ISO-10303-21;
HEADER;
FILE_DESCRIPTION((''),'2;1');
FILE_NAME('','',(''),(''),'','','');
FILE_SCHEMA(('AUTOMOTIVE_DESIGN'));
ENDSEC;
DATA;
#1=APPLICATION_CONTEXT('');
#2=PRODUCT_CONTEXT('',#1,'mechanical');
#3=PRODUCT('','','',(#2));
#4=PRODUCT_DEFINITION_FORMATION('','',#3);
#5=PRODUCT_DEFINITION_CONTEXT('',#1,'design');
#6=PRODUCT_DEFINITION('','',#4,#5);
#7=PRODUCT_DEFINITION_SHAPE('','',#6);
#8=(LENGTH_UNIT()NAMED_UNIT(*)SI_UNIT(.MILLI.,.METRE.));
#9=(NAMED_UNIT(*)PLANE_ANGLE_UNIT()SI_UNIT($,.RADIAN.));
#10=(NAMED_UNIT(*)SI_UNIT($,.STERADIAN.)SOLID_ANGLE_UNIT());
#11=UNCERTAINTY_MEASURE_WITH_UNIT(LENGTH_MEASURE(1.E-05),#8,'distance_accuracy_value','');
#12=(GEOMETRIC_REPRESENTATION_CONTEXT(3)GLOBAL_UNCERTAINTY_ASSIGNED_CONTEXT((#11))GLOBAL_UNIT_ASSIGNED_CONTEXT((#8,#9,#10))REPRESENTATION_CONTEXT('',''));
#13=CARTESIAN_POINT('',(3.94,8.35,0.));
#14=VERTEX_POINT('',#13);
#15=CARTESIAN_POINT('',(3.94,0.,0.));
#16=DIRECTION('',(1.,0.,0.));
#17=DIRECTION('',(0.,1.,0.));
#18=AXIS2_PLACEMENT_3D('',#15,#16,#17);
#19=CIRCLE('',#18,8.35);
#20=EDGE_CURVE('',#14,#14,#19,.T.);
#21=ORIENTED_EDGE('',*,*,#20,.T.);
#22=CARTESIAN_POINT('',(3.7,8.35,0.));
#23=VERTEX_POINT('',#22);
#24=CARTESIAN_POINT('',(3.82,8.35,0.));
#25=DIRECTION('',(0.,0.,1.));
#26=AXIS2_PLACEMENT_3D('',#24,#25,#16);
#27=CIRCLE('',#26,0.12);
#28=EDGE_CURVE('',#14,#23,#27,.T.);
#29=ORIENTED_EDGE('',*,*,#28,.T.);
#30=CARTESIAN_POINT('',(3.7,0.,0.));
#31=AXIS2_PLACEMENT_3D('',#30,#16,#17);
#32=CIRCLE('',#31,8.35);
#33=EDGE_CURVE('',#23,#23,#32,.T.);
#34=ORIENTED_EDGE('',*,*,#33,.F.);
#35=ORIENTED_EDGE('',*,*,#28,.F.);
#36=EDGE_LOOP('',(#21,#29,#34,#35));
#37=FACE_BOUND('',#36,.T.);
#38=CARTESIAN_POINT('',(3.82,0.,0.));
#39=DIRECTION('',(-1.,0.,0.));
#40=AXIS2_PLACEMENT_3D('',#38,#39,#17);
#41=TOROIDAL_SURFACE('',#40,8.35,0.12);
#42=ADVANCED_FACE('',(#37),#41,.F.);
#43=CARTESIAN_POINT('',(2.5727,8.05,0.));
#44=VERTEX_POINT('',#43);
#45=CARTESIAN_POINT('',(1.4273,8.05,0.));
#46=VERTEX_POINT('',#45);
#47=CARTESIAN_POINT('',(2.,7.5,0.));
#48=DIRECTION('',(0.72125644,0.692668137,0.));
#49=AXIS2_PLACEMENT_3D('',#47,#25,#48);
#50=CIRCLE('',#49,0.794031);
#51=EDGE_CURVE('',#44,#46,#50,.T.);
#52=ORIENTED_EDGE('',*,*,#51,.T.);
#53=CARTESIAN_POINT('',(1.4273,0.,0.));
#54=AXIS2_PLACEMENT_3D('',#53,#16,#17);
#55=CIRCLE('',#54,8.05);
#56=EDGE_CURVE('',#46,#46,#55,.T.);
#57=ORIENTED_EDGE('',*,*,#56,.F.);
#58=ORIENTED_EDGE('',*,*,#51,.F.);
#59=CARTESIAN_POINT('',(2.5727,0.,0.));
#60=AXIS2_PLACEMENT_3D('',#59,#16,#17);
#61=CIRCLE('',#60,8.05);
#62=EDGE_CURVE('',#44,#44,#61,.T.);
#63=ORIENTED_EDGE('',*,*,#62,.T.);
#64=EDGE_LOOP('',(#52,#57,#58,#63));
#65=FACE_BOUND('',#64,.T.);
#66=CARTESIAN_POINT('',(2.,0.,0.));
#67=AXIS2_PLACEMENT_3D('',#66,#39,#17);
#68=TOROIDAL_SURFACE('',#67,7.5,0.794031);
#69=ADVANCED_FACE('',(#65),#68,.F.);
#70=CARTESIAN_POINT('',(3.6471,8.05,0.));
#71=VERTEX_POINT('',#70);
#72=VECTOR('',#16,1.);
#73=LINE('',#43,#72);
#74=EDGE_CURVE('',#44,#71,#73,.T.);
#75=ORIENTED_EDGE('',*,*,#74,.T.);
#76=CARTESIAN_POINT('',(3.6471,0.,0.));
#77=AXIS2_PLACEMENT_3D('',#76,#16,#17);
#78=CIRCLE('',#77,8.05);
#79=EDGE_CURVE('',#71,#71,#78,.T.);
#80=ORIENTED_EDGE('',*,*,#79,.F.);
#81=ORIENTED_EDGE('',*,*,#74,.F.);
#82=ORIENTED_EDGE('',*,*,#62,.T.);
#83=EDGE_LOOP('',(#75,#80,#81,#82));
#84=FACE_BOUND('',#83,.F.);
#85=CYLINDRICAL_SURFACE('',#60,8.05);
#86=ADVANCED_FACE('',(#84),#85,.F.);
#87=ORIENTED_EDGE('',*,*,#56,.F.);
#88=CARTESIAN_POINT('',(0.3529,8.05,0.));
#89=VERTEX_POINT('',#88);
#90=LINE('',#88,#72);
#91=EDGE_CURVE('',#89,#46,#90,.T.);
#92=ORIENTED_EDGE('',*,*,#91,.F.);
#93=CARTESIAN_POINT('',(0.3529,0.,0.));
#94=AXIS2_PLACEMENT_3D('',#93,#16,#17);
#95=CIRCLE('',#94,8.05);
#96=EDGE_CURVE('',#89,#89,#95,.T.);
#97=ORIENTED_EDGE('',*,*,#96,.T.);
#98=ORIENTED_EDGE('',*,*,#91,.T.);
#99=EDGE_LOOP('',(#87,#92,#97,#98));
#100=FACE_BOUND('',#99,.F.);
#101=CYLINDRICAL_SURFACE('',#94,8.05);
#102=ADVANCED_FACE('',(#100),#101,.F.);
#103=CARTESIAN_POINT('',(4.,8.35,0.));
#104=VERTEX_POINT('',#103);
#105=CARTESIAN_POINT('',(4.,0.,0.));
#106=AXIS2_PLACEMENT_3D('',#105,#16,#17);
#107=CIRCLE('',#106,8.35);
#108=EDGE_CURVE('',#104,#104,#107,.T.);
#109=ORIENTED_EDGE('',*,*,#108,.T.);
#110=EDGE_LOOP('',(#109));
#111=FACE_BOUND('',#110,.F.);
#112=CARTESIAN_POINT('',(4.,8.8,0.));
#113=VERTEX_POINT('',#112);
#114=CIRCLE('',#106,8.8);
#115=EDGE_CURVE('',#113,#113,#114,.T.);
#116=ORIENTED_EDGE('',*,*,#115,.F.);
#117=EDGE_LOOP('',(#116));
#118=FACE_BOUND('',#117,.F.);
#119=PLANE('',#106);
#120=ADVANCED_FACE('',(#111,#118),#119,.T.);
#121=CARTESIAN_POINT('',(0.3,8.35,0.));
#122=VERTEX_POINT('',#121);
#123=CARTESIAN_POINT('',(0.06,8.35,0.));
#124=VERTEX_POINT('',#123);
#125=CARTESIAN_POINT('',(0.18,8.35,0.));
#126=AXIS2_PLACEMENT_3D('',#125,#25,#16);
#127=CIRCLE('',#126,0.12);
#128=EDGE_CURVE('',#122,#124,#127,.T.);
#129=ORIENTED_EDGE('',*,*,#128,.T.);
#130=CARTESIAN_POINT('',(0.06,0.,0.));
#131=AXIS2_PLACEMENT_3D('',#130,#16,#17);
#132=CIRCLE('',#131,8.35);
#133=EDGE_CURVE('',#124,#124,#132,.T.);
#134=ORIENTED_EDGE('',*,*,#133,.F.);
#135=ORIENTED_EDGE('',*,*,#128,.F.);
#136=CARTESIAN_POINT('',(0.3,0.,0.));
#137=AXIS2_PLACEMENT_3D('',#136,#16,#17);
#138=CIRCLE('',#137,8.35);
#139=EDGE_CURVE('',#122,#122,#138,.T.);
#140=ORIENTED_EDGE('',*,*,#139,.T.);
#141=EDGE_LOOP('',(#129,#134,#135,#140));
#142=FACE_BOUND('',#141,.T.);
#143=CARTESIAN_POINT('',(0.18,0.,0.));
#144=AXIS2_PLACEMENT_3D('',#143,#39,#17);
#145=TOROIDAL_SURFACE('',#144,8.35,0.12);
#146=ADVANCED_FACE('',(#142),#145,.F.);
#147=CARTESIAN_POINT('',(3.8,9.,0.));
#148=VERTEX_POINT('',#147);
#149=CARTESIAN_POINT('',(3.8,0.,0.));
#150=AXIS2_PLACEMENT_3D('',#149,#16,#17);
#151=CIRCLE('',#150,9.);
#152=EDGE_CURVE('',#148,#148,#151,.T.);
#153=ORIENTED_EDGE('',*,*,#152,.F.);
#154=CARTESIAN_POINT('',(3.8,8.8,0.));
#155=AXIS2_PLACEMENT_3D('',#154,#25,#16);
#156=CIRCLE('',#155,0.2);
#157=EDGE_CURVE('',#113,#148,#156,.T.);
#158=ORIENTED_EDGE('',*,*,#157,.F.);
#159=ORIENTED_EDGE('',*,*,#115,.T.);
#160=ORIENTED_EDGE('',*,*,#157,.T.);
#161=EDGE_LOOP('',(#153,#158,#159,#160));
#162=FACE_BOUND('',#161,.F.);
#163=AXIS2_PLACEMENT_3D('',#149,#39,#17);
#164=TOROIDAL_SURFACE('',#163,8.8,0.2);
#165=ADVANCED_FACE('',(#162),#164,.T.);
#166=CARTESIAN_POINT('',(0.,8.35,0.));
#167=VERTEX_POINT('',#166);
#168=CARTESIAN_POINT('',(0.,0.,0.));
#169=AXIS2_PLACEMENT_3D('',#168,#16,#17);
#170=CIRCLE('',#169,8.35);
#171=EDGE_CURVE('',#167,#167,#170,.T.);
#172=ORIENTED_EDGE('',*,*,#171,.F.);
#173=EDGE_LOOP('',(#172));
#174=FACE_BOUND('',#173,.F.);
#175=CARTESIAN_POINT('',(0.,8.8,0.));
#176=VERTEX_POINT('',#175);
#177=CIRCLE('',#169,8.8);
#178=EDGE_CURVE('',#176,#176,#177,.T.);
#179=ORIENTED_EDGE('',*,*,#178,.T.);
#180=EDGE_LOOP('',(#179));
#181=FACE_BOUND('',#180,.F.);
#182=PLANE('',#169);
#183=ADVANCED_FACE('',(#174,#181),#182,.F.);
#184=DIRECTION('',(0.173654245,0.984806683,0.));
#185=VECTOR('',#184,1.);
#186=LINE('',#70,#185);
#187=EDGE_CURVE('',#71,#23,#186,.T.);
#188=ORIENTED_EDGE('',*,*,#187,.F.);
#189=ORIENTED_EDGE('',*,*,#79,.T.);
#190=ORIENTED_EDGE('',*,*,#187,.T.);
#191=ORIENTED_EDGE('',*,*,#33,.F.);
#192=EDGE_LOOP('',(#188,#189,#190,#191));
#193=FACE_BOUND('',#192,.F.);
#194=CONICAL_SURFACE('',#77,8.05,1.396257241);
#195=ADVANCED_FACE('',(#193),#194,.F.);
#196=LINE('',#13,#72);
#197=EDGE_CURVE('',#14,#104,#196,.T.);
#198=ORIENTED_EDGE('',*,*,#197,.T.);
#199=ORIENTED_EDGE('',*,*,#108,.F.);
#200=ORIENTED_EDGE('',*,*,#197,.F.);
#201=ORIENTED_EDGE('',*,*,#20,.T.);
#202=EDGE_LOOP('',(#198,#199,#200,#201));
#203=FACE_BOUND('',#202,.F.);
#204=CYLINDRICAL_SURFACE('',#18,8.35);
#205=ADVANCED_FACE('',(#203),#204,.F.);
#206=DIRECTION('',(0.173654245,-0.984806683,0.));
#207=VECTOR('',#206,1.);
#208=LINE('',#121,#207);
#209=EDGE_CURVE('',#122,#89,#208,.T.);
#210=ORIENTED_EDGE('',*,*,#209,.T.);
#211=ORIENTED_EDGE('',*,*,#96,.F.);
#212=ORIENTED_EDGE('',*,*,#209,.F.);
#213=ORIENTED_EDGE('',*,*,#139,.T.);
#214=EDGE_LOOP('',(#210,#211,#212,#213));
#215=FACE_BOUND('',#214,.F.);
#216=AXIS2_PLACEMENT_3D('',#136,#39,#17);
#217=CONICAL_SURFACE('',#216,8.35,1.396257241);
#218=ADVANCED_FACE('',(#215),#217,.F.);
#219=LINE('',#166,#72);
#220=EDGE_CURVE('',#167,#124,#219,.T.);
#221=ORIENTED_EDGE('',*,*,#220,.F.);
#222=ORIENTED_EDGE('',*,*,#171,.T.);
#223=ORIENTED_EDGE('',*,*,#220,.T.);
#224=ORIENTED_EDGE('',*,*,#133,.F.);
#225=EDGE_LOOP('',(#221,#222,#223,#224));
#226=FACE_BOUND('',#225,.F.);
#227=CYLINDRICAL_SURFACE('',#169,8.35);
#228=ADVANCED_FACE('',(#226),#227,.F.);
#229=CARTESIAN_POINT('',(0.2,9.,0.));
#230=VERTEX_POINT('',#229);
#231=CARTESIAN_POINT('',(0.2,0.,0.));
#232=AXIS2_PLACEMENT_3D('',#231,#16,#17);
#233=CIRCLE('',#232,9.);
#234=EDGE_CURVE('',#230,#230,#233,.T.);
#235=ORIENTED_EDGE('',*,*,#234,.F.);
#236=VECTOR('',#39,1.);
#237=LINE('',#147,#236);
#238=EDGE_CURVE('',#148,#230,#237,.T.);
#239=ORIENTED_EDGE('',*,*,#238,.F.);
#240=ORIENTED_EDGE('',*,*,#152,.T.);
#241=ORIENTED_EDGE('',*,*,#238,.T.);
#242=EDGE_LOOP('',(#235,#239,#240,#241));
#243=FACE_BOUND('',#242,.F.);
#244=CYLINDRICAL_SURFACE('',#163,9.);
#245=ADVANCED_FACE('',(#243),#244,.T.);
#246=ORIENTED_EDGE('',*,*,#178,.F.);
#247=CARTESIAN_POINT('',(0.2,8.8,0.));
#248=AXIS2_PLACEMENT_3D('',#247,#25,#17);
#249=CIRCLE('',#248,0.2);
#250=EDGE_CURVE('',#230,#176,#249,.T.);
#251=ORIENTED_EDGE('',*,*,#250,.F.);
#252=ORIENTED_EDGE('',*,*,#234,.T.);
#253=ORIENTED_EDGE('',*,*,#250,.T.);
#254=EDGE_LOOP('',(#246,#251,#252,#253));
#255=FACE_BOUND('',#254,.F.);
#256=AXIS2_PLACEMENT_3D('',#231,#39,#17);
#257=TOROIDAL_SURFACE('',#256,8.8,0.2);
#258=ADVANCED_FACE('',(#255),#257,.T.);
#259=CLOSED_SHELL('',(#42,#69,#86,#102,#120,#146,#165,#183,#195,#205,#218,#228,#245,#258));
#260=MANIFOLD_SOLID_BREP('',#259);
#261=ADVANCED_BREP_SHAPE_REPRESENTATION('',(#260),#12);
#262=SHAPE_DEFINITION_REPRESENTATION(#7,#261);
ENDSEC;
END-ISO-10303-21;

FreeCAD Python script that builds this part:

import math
import FreeCAD as App
import Part
import Sketcher

V = App.Vector
Q = App.Units.Quantity

doc = App.newDocument("Part")
body = doc.addObject("PartDesign::Body", "Body")

# Sketch on XY plane
sketch1 = doc.addObject("Sketcher::SketchObject", "Sketch")
body.addObject(sketch1)
sketch1.AttachmentSupport = (doc.XY_Plane, [""])
sketch1.MapMode = "FlatFace"
sketch1.addGeometry([
    Part.LineSegment(V(0, 8.8, 0), V(0, 8.35, 0)),  # 0
    Part.LineSegment(V(0, 8.35, 0), V(0.06, 8.35, 0)),  # 1
    Part.ArcOfCircle(Part.Circle(V(0.18, 8.35, 0), V(0, 0, 1), 0.12), math.radians(0), math.radians(180)),  # 2
    Part.LineSegment(V(0.3, 8.35, 0), V(0.35, 8.05, 0)),  # 3
    Part.LineSegment(V(0.35, 8.05, 0), V(1.43, 8.05, 0)),  # 4
    Part.ArcOfCircle(Part.Circle(V(2, 7.5, 0), V(0, 0, 1), 0.79), math.radians(44), math.radians(136)),  # 5
    Part.LineSegment(V(2.57, 8.05, 0), V(3.65, 8.05, 0)),  # 6
    Part.LineSegment(V(3.65, 8.05, 0), V(3.7, 8.35, 0)),  # 7
    Part.ArcOfCircle(Part.Circle(V(3.82, 8.35, 0), V(0, 0, 1), 0.12), math.radians(0), math.radians(180)),  # 8
    Part.LineSegment(V(3.94, 8.35, 0), V(4, 8.35, 0)),  # 9
    Part.LineSegment(V(4, 8.35, 0), V(4, 8.8, 0)),  # 10
    Part.ArcOfCircle(Part.Circle(V(3.8, 8.8, 0), V(0, 0, 1), 0.2), math.radians(0), math.radians(90)),  # 11
    Part.LineSegment(V(3.8, 9, 0), V(0.2, 9, 0)),  # 12
    Part.ArcOfCircle(Part.Circle(V(0.2, 8.8, 0), V(0, 0, 1), 0.2), math.radians(90), math.radians(180)),  # 13
], False)
sketch1.addConstraint([
    Sketcher.Constraint("Coincident", 0, 2, 1, 1),
    Sketcher.Constraint("Coincident", 1, 2, 2, 2),
    Sketcher.Constraint("Coincident", 2, 1, 3, 1),
    Sketcher.Constraint("Coincident", 3, 2, 4, 1),
    Sketcher.Constraint("Coincident", 4, 2, 5, 2),
    Sketcher.Constraint("Coincident", 5, 1, 6, 1),
    Sketcher.Constraint("Coincident", 6, 2, 7, 1),
    Sketcher.Constraint("Coincident", 7, 2, 8, 2),
    Sketcher.Constraint("Coincident", 8, 1, 9, 1),
    Sketcher.Constraint("Coincident", 9, 2, 10, 1),
    Sketcher.Constraint("Tangent", 10, 2, 11, 1),
    Sketcher.Constraint("Tangent", 11, 2, 12, 1),
    Sketcher.Constraint("Tangent", 12, 2, 13, 1),
    Sketcher.Constraint("Tangent", 13, 2, 0, 1),
    Sketcher.Constraint("Vertical", 0),
    Sketcher.Constraint("Horizontal", 1),
    Sketcher.Constraint("Horizontal", 4),
    Sketcher.Constraint("Horizontal", 6),
    Sketcher.Constraint("Horizontal", 9),
    Sketcher.Constraint("Vertical", 10),
    Sketcher.Constraint("Horizontal", 12),
    Sketcher.Constraint("Equal", 2, 8),
    Sketcher.Constraint("Equal", 11, 13),
    Sketcher.Constraint("PointOnObject", 0, 2, -2),
    Sketcher.Constraint("Horizontal", 2, 3, 8, 3),
    Sketcher.Constraint("Horizontal", 8, 3, 0, 2),
    Sketcher.Constraint("Horizontal", 1, 2, 2, 1),
    Sketcher.Constraint("Horizontal", 4, 2, 5, 1),
    Sketcher.Constraint("Horizontal", 2, 1, 7, 2),
    Sketcher.Constraint("Horizontal", 7, 2, 8, 1),
    Sketcher.Constraint("Equal", 4, 6),
    Sketcher.Constraint("Equal", 1, 9),
    Sketcher.Constraint("Equal", 3, 7),
    Sketcher.Constraint("Radius", 11, 0.2),
    Sketcher.Constraint("Angle", 3, Q("-79.9996 deg")),
    Sketcher.Constraint("Radius", 2, 0.12),
    Sketcher.Constraint("DistanceX", 12, 2, 12, 1, 3.6),
    Sketcher.Constraint("DistanceY", -1, 1, 11, 2, 9.0),
    Sketcher.Constraint("Radius", 5, 0.794),
    Sketcher.Constraint("DistanceX", 1, 1, 1, 2, 0.06),
    Sketcher.Constraint("DistanceY", 0, 2, 0, 1, 0.45),
    Sketcher.Constraint("DistanceY", -1, 1, 5, 3, 7.5),
    Sketcher.Constraint("DistanceY", 3, 2, 2, 1, 0.3),
])
revolution = doc.addObject("PartDesign::Revolution", "Revolution")
body.addObject(revolution)
revolution.Profile = sketch1
revolution.ReferenceAxis = (sketch1, ["H_Axis"])
revolution.Angle = 360

doc.recompute()
